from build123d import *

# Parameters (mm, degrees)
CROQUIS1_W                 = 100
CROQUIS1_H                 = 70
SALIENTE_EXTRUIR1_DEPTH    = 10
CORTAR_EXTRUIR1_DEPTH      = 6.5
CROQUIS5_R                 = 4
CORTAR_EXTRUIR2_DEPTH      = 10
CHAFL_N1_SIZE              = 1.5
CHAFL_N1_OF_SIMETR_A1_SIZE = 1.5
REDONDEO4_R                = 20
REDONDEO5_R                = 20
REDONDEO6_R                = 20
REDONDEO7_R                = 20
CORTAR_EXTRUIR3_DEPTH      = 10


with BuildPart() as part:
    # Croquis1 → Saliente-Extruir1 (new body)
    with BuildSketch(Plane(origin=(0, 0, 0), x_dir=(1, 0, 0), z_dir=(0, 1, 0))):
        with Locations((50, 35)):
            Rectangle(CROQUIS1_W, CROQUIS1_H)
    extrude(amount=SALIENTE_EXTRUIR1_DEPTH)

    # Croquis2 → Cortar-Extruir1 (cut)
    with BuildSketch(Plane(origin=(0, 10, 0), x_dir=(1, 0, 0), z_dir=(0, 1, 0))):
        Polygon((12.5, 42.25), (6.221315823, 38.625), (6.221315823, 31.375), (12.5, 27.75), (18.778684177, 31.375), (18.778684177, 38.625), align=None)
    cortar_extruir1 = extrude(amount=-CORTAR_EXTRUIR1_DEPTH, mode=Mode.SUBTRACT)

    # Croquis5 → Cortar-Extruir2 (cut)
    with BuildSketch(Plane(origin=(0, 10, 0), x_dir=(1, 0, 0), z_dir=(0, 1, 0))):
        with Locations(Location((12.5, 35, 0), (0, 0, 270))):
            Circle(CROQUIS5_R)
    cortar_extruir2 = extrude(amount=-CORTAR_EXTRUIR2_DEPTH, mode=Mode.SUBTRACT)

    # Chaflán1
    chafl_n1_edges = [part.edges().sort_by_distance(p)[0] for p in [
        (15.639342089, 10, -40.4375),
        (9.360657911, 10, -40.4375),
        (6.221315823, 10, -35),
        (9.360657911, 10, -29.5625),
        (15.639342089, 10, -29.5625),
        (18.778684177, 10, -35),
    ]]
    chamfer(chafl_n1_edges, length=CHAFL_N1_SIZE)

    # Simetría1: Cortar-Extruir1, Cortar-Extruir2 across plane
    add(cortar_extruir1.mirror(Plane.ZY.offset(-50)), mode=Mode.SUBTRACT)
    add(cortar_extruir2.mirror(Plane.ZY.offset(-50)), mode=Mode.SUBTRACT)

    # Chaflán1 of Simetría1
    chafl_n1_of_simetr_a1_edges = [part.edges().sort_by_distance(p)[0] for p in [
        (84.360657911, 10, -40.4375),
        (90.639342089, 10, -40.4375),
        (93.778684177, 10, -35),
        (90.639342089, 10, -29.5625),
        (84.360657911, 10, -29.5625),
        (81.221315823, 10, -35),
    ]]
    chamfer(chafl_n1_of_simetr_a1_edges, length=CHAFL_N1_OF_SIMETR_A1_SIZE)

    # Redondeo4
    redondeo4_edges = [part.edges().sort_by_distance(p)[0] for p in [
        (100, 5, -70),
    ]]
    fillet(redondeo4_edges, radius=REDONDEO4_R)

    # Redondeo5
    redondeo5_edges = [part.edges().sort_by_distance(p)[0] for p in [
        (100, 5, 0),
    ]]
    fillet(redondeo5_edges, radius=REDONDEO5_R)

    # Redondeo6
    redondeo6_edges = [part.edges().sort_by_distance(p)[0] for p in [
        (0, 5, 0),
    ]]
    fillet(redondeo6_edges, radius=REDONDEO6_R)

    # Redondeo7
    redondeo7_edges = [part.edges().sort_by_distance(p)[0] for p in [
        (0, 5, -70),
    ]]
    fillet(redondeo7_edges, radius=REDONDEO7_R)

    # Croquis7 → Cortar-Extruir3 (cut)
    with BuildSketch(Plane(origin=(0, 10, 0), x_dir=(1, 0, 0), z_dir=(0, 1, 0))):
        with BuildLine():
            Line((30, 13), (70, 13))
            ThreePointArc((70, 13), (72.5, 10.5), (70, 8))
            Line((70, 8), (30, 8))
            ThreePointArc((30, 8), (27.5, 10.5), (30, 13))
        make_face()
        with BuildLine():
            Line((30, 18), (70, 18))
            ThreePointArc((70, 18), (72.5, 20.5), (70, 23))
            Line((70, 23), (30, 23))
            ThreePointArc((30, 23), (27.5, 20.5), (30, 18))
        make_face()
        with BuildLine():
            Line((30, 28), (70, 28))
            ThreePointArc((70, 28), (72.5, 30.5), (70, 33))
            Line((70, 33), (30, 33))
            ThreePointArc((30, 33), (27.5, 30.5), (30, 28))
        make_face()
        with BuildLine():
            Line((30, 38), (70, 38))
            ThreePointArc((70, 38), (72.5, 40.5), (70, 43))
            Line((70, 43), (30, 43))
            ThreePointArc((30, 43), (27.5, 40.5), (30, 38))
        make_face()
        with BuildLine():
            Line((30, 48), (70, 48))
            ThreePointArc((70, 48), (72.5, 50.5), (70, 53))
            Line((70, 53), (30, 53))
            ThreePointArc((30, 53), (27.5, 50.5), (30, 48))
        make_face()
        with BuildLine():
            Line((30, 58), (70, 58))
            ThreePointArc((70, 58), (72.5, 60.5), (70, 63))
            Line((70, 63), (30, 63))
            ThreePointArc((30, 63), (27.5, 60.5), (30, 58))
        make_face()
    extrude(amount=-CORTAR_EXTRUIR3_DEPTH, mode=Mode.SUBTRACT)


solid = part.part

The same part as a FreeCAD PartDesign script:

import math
import FreeCAD as App
import Part
import Sketcher
Q = App.Units.Quantity


def edges_at(feature, points):
    """Names of the edges that pass closest to the given points."""
    edges = feature.Shape.Edges
    near = lambda p: min(range(len(edges)), key=lambda i: edges[i].distToShape(Part.Vertex(*p))[0])
    return sorted({f"Edge{near(p) + 1}" for p in points})


def add_polygon(sketch, points):
    """Adds a closed chain of lines whose ends are joined by coincident constraints."""
    first, n = sketch.GeometryCount, len(points)
    for a, b in zip(points, points[1:] + points[:1]):
        sketch.addGeometry(Part.LineSegment(App.Vector(*a, 0), App.Vector(*b, 0)), False)
    for i in range(n):
        sketch.addConstraint(Sketcher.Constraint("Coincident", first + i, 2, first + (i + 1) % n, 1))

doc = App.newDocument("Part")
params = doc.addObject("Spreadsheet::Sheet", "Params")
for row, (alias, value) in enumerate([
    ("sketch1_width", "100 mm"),
    ("sketch1_height", "70 mm"),
    ("pad1_length", "10 mm"),
    ("sketch2_height", "7.25 mm"),
    ("pocket1_length", "6.5 mm"),
    ("sketch3_diameter", "8 mm"),
    ("pocket2_length", "10 mm"),
    ("chamfer_size", "1.5 mm"),
    ("chamfer2_size", "1.5 mm"),
    ("fillet_radius", "20 mm"),
    ("fillet2_radius", "20 mm"),
    ("fillet3_radius", "20 mm"),
    ("fillet4_radius", "20 mm"),
    ("sketch4_radius", "2.5 mm"),
    ("sketch4_width", "40 mm"),
    ("pocket3_length", "10 mm"),
], start=1):
    params.set(f"A{row}", alias)
    params.set(f"B{row}", "=" + value)
    params.setAlias(f"B{row}", alias)

body = doc.addObject("PartDesign::Body", "Body")

# Sketch on XZ plane
sketch1 = body.newObject("Sketcher::SketchObject", "Sketch")
sketch1.AttachmentSupport = (doc.getObject("XZ_Plane"), [""])
sketch1.MapMode = "FlatFace"
add_polygon(sketch1, [(0, -70), (0, 0), (100, 0), (100, -70)])  # lines 0-3
sketch1.addConstraint([
    Sketcher.Constraint("Vertical", 0),
    Sketcher.Constraint("Horizontal", 1),
    Sketcher.Constraint("Vertical", 2),
    Sketcher.Constraint("Horizontal", 3),
    Sketcher.Constraint("Coincident", 0, 2, -1, 1),
    Sketcher.Constraint("DistanceX", 1, 1, 1, 2, Q("100 mm")),
    Sketcher.Constraint("DistanceY", 0, 1, 0, 2, Q("70 mm")),
])
sketch1.setExpression("Constraints[9]", "Params.sketch1_width")
sketch1.setExpression("Constraints[10]", "Params.sketch1_height")
pad1 = body.newObject("PartDesign::Pad", "Pad")
pad1.Profile = sketch1
pad1.setExpression("Length", "Params.pad1_length")
pad1.Reversed = True

# Sketch on XZ plane
sketch2 = body.newObject("Sketcher::SketchObject", "Sketch001")
sketch2.AttachmentSupport = (doc.getObject("XZ_Plane"), [""])
sketch2.MapMode = "FlatFace"
sketch2.AttachmentOffset = App.Placement(App.Vector(0, 0, -10), App.Rotation())
add_polygon(sketch2, [(12, -42), (6, -39), (6, -31), (12, -28), (19, -31), (19, -39)])  # lines 0-5
sketch2.addConstraint([
    Sketcher.Constraint("Vertical", 1),
    Sketcher.Constraint("Vertical", 4),
    Sketcher.Constraint("Parallel", 0, 3),
    Sketcher.Constraint("Parallel", 2, 5),
    Sketcher.Constraint("Horizontal", 1, 2, 3, 2),
    Sketcher.Constraint("Horizontal", 0, 2, 4, 2),
    Sketcher.Constraint("Vertical", 2, 2, 5, 2),
    Sketcher.Constraint("Angle", 0, Q("150 deg")),
    Sketcher.Constraint("DistanceY", 1, 1, 1, 2, Q("7.25 mm")),
    Sketcher.Constraint("DistanceX", -1, 1, 2, 2, Q("12.5 mm")),
    Sketcher.Constraint("DistanceY", 5, 2, 2, 2, Q("14.5 mm")),
    Sketcher.Constraint("DistanceY", 2, 2, -1, 1, Q("27.75 mm")),
])
sketch2.setExpression("Constraints[14]", "Params.sketch2_height")
pocket1 = body.newObject("PartDesign::Pocket", "Pocket")
pocket1.Profile = sketch2
pocket1.setExpression("Length", "Params.pocket1_length")
pocket1.Reversed = True

# Sketch on XZ plane
sketch3 = body.newObject("Sketcher::SketchObject", "Sketch002")
sketch3.AttachmentSupport = (doc.getObject("XZ_Plane"), [""])
sketch3.MapMode = "FlatFace"
sketch3.AttachmentOffset = App.Placement(App.Vector(0, 0, -10), App.Rotation())
sketch3.addGeometry(Part.Circle(App.Vector(12.5, -35, 0), App.Vector(0, 0, 1), 4), False)
sketch3.addConstraint([
    Sketcher.Constraint("Diameter", 0, Q("8 mm")),
    Sketcher.Constraint("DistanceY", 0, 3, -1, 1, Q("35 mm")),
    Sketcher.Constraint("DistanceX", -1, 1, 0, 3, Q("12.5 mm")),
])
sketch3.setExpression("Constraints[0]", "Params.sketch3_diameter")
pocket2 = body.newObject("PartDesign::Pocket", "Pocket001")
pocket2.Profile = sketch3
pocket2.setExpression("Length", "Params.pocket2_length")
pocket2.Reversed = True
doc.recompute()

chamfer = body.newObject("PartDesign::Chamfer", "Chamfer")
chamfer.Base = (pocket2, edges_at(pocket2, [
    (15.639, 10, -40.438),
    (9.361, 10, -40.438),
    (6.221, 10, -35),
    (9.361, 10, -29.562),
    (15.639, 10, -29.562),
    (18.779, 10, -35),
]))
chamfer.setExpression("Size", "Params.chamfer_size")
doc.recompute()

datumplane = body.newObject("PartDesign::Plane", "DatumPlane")
datumplane.AttachmentSupport = (doc.getObject("YZ_Plane"), [""])
datumplane.MapMode = "FlatFace"
datumplane.AttachmentOffset = App.Placement(App.Vector(0, 0, 50), App.Rotation())
mirrored = body.newObject("PartDesign::Mirrored", "Mirrored")
mirrored.Originals = [pocket1, pocket2]
mirrored.MirrorPlane = (datumplane, [""])
body.Tip = mirrored
doc.recompute()

chamfer2 = body.newObject("PartDesign::Chamfer", "Chamfer001")
chamfer2.Base = (mirrored, edges_at(mirrored, [
    (84.361, 10, -40.438),
    (90.639, 10, -40.438),
    (93.779, 10, -35),
    (90.639, 10, -29.562),
    (84.361, 10, -29.562),
    (81.221, 10, -35),
]))
chamfer2.setExpression("Size", "Params.chamfer2_size")
doc.recompute()

fillet = body.newObject("PartDesign::Fillet", "Fillet")
fillet.Base = (chamfer2, edges_at(chamfer2, [(100, 5, -70)]))
fillet.setExpression("Radius", "Params.fillet_radius")
doc.recompute()

fillet2 = body.newObject("PartDesign::Fillet", "Fillet001")
fillet2.Base = (fillet, edges_at(fillet, [(100, 5, 0)]))
fillet2.setExpression("Radius", "Params.fillet2_radius")
doc.recompute()

fillet3 = body.newObject("PartDesign::Fillet", "Fillet002")
fillet3.Base = (fillet2, edges_at(fillet2, [(0, 5, 0)]))
fillet3.setExpression("Radius", "Params.fillet3_radius")
doc.recompute()

fillet4 = body.newObject("PartDesign::Fillet", "Fillet003")
fillet4.Base = (fillet3, edges_at(fillet3, [(0, 5, -70)]))
fillet4.setExpression("Radius", "Params.fillet4_radius")

# Sketch on XZ plane
sketch4 = body.newObject("Sketcher::SketchObject", "Sketch003")
sketch4.AttachmentSupport = (doc.getObject("XZ_Plane"), [""])
sketch4.MapMode = "FlatFace"
sketch4.AttachmentOffset = App.Placement(App.Vector(0, 0, -10), App.Rotation())
sketch4.addGeometry([
    Part.LineSegment(App.Vector(70, -13, 0), App.Vector(30, -13, 0)),  # 0
    Part.ArcOfCircle(Part.Circle(App.Vector(30, -10.5, 0), App.Vector(0, 0, 1), 2.5), math.radians(90), math.radians(270)),  # 1
    Part.LineSegment(App.Vector(30, -8, 0), App.Vector(70, -8, 0)),  # 2
    Part.ArcOfCircle(Part.Circle(App.Vector(70, -10.5, 0), App.Vector(0, 0, 1), 2.5), math.radians(-90), math.radians(90)),  # 3
    Part.LineSegment(App.Vector(30, -18, 0), App.Vector(70, -18, 0)),  # 4
    Part.ArcOfCircle(Part.Circle(App.Vector(70, -20.5, 0), App.Vector(0, 0, 1), 2.5), math.radians(-90), math.radians(90)),  # 5
    Part.LineSegment(App.Vector(70, -23, 0), App.Vector(30, -23, 0)),  # 6
    Part.ArcOfCircle(Part.Circle(App.Vector(30, -20.5, 0), App.Vector(0, 0, 1), 2.5), math.radians(90), math.radians(270)),  # 7
    Part.LineSegment(App.Vector(30, -28, 0), App.Vector(70, -28, 0)),  # 8
    Part.ArcOfCircle(Part.Circle(App.Vector(70, -30.5, 0), App.Vector(0, 0, 1), 2.5), math.radians(-90), math.radians(90)),  # 9
    Part.LineSegment(App.Vector(70, -33, 0), App.Vector(30, -33, 0)),  # 10
    Part.ArcOfCircle(Part.Circle(App.Vector(30, -30.5, 0), App.Vector(0, 0, 1), 2.5), math.radians(90), math.radians(270)),  # 11
    Part.LineSegment(App.Vector(30, -38, 0), App.Vector(70, -38, 0)),  # 12
    Part.ArcOfCircle(Part.Circle(App.Vector(70, -40.5, 0), App.Vector(0, 0, 1), 2.5), math.radians(-90), math.radians(90)),  # 13
    Part.LineSegment(App.Vector(70, -43, 0), App.Vector(30, -43, 0)),  # 14
    Part.ArcOfCircle(Part.Circle(App.Vector(30, -40.5, 0), App.Vector(0, 0, 1), 2.5), math.radians(90), math.radians(270)),  # 15
    Part.LineSegment(App.Vector(30, -48, 0), App.Vector(70, -48, 0)),  # 16
    Part.ArcOfCircle(Part.Circle(App.Vector(70, -50.5, 0), App.Vector(0, 0, 1), 2.5), math.radians(-90), math.radians(90)),  # 17
    Part.LineSegment(App.Vector(70, -53, 0), App.Vector(30, -53, 0)),  # 18
    Part.ArcOfCircle(Part.Circle(App.Vector(30, -50.5, 0), App.Vector(0, 0, 1), 2.5), math.radians(90), math.radians(270)),  # 19
    Part.LineSegment(App.Vector(30, -58, 0), App.Vector(70, -58, 0)),  # 20
    Part.ArcOfCircle(Part.Circle(App.Vector(70, -60.5, 0), App.Vector(0, 0, 1), 2.5), math.radians(-90), math.radians(90)),  # 21
    Part.LineSegment(App.Vector(70, -63, 0), App.Vector(30, -63, 0)),  # 22
    Part.ArcOfCircle(Part.Circle(App.Vector(30, -60.5, 0), App.Vector(0, 0, 1), 2.5), math.radians(90), math.radians(270)),  # 23
], False)
sketch4.addConstraint([
    Sketcher.Constraint("Tangent", 0, 2, 1, 2),
    Sketcher.Constraint("Tangent", 1, 1, 2, 1),
    Sketcher.Constraint("Tangent", 2, 2, 3, 2),
    Sketcher.Constraint("Tangent", 3, 1, 0, 1),
    Sketcher.Constraint("Tangent", 4, 2, 5, 2),
    Sketcher.Constraint("Tangent", 5, 1, 6, 1),
    Sketcher.Constraint("Tangent", 6, 2, 7, 2),
    Sketcher.Constraint("Tangent", 7, 1, 4, 1),
    Sketcher.Constraint("Tangent", 8, 2, 9, 2),
    Sketcher.Constraint("Tangent", 9, 1, 10, 1),
    Sketcher.Constraint("Tangent", 10, 2, 11, 2),
    Sketcher.Constraint("Tangent", 11, 1, 8, 1),
    Sketcher.Constraint("Tangent", 12, 2, 13, 2),
    Sketcher.Constraint("Tangent", 13, 1, 14, 1),
    Sketcher.Constraint("Tangent", 14, 2, 15, 2),
    Sketcher.Constraint("Tangent", 15, 1, 12, 1),
    Sketcher.Constraint("Tangent", 16, 2, 17, 2),
    Sketcher.Constraint("Tangent", 17, 1, 18, 1),
    Sketcher.Constraint("Tangent", 18, 2, 19, 2),
    Sketcher.Constraint("Tangent", 19, 1, 16, 1),
    Sketcher.Constraint("Tangent", 20, 2, 21, 2),
    Sketcher.Constraint("Tangent", 21, 1, 22, 1),
    Sketcher.Constraint("Tangent", 22, 2, 23, 2),
    Sketcher.Constraint("Tangent", 23, 1, 20, 1),
    Sketcher.Constraint("Horizontal", 0),
    Sketcher.Constraint("Horizontal", 2),
    Sketcher.Constraint("Horizontal", 4),
    Sketcher.Constraint("Horizontal", 6),
    Sketcher.Constraint("Horizontal", 8),
    Sketcher.Constraint("Horizontal", 10),
    Sketcher.Constraint("Horizontal", 12),
    Sketcher.Constraint("Horizontal", 14),
    Sketcher.Constraint("Horizontal", 16),
    Sketcher.Constraint("Horizontal", 18),
    Sketcher.Constraint("Horizontal", 20),
    Sketcher.Constraint("Horizontal", 22),
    Sketcher.Constraint("Equal", 3, 5),
    Sketcher.Constraint("Equal", 7, 9),
    Sketcher.Constraint("Equal", 11, 13),
    Sketcher.Constraint("Equal", 15, 17),
    Sketcher.Constraint("Equal", 19, 21),
    Sketcher.Constraint("Vertical", 3, 3, 5, 3),
    Sketcher.Constraint("Vertical", 1, 3, 7, 3),
    Sketcher.Constraint("Vertical", 5, 3, 9, 3),
    Sketcher.Constraint("Vertical", 7, 3, 11, 3),
    Sketcher.Constraint("Vertical", 9, 3, 13, 3),
    Sketcher.Constraint("Vertical", 11, 3, 15, 3),
    Sketcher.Constraint("Vertical", 13, 3, 17, 3),
    Sketcher.Constraint("Vertical", 15, 3, 19, 3),
    Sketcher.Constraint("Vertical", 17, 3, 21, 3),
    Sketcher.Constraint("Vertical", 19, 3, 23, 3),
    Sketcher.Constraint("Radius", 1, Q("2.5 mm")),
    Sketcher.Constraint("DistanceX", 0, 2, 0, 1, Q("40 mm")),
    Sketcher.Constraint("DistanceX", -1, 1, 1, 3, Q("30 mm")),
    Sketcher.Constraint("DistanceY", 0, 2, -1, 1, Q("13 mm")),
    Sketcher.Constraint("DistanceY", 4, 2, -1, 1, Q("18 mm")),
    Sketcher.Constraint("DistanceY", 8, 2, -1, 1, Q("28 mm")),
    Sketcher.Constraint("DistanceY", 12, 2, -1, 1, Q("38 mm")),
    Sketcher.Constraint("DistanceY", 16, 2, -1, 1, Q("48 mm")),
    Sketcher.Constraint("DistanceY", 20, 2, -1, 1, Q("58 mm")),
])
sketch4.setExpression("Constraints[51]", "Params.sketch4_radius")
sketch4.setExpression("Constraints[52]", "Params.sketch4_width")
pocket3 = body.newObject("PartDesign::Pocket", "Pocket002")
pocket3.Profile = sketch4
pocket3.setExpression("Length", "Params.pocket3_length")
pocket3.Reversed = True

doc.recompute()
